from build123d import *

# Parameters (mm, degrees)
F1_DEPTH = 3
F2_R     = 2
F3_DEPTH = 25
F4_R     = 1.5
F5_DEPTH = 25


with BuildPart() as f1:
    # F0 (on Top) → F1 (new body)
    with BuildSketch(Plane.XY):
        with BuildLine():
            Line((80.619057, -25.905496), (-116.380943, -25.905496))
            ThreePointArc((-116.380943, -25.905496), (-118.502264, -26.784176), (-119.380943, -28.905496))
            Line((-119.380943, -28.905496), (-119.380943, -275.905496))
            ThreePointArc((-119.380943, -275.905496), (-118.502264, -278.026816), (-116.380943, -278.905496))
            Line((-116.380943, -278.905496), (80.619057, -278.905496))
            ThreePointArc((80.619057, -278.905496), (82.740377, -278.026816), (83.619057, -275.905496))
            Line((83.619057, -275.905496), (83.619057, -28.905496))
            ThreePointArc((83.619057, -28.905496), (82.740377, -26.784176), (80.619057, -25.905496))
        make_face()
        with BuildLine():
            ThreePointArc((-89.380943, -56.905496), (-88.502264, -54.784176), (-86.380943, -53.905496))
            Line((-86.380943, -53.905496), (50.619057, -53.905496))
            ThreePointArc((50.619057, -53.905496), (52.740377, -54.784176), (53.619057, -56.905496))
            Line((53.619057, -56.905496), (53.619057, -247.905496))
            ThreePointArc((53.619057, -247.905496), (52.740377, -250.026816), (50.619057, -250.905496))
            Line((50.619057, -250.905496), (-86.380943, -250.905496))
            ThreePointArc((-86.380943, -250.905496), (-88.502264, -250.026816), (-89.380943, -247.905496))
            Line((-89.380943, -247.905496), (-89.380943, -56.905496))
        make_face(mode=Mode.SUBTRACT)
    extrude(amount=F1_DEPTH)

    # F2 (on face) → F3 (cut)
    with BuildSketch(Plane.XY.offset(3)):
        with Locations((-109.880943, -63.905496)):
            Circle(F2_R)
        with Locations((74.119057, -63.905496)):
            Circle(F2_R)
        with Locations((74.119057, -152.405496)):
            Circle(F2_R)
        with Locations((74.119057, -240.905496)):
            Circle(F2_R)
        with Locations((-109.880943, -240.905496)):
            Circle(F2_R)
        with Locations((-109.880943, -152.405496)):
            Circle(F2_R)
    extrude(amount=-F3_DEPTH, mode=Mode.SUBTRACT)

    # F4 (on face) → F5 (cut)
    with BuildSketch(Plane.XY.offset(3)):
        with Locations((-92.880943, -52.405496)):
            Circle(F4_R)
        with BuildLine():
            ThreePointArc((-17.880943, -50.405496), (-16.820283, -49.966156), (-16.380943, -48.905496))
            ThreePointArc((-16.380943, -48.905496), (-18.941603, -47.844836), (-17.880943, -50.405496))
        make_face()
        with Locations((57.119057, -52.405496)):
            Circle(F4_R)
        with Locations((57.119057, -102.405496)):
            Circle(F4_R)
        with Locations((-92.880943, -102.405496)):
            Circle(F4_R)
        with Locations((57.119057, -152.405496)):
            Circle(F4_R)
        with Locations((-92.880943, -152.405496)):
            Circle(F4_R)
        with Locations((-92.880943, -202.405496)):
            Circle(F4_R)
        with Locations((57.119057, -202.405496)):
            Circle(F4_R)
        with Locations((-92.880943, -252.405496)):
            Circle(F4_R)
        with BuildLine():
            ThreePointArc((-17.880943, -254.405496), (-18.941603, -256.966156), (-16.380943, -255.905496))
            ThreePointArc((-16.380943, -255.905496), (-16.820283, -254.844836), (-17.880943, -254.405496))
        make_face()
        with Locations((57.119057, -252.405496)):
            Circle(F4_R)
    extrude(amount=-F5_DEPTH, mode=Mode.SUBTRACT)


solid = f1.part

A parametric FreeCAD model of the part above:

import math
import FreeCAD as App
import Part
import Sketcher

doc = App.newDocument("Part")
body = doc.addObject("PartDesign::Body", "Body")

sketch1 = body.newObject("Sketcher::SketchObject", "Sketch")
sketch1.AttachmentSupport = (doc.getObject("XY_Plane"), [""])
sketch1.MapMode = "FlatFace"
sketch1.addGeometry([
    Part.LineSegment(App.Vector(80.6, -25.9, 0), App.Vector(-116.4, -25.9, 0)),
    Part.ArcOfCircle(Part.Circle(App.Vector(-116.4, -28.9, 0), App.Vector(0, 0, 1), 3), math.radians(90), math.radians(180)),
    Part.LineSegment(App.Vector(-119.4, -28.9, 0), App.Vector(-119.4, -275.9, 0)),
    Part.ArcOfCircle(Part.Circle(App.Vector(-116.4, -275.9, 0), App.Vector(0, 0, 1), 3), math.radians(180), math.radians(270)),
    Part.LineSegment(App.Vector(-116.4, -278.9, 0), App.Vector(80.6, -278.9, 0)),
    Part.ArcOfCircle(Part.Circle(App.Vector(80.6, -275.9, 0), App.Vector(0, 0, 1), 3), math.radians(-90), math.radians(0)),
    Part.LineSegment(App.Vector(83.6, -275.9, 0), App.Vector(83.6, -28.9, 0)),
    Part.ArcOfCircle(Part.Circle(App.Vector(80.6, -28.9, 0), App.Vector(0, 0, 1), 3), math.radians(0), math.radians(90)),
    Part.LineSegment(App.Vector(-89.4, -247.9, 0), App.Vector(-89.4, -56.9, 0)),
    Part.ArcOfCircle(Part.Circle(App.Vector(-86.4, -56.9, 0), App.Vector(0, 0, 1), 3), math.radians(90), math.radians(180)),
    Part.LineSegment(App.Vector(-86.4, -53.9, 0), App.Vector(50.6, -53.9, 0)),
    Part.ArcOfCircle(Part.Circle(App.Vector(50.6, -56.9, 0), App.Vector(0, 0, 1), 3), math.radians(0), math.radians(90)),
    Part.LineSegment(App.Vector(53.6, -56.9, 0), App.Vector(53.6, -247.9, 0)),
    Part.ArcOfCircle(Part.Circle(App.Vector(50.6, -247.9, 0), App.Vector(0, 0, 1), 3), math.radians(-90), math.radians(0)),
    Part.LineSegment(App.Vector(50.6, -250.9, 0), App.Vector(-86.4, -250.9, 0)),
    Part.ArcOfCircle(Part.Circle(App.Vector(-86.4, -247.9, 0), App.Vector(0, 0, 1), 3), math.radians(180), math.radians(270)),
], False)
sketch1.addConstraint([
    Sketcher.Constraint("Tangent", 0, 2, 1, 1),
    Sketcher.Constraint("Tangent", 1, 2, 2, 1),
    Sketcher.Constraint("Tangent", 2, 2, 3, 1),
    Sketcher.Constraint("Tangent", 3, 2, 4, 1),
    Sketcher.Constraint("Tangent", 4, 2, 5, 1),
    Sketcher.Constraint("Tangent", 5, 2, 6, 1),
    Sketcher.Constraint("Tangent", 6, 2, 7, 1),
    Sketcher.Constraint("Tangent", 7, 2, 0, 1),
    Sketcher.Constraint("Tangent", 8, 2, 9, 2),
    Sketcher.Constraint("Tangent", 9, 1, 10, 1),
    Sketcher.Constraint("Tangent", 10, 2, 11, 2),
    Sketcher.Constraint("Tangent", 11, 1, 12, 1),
    Sketcher.Constraint("Tangent", 12, 2, 13, 2),
    Sketcher.Constraint("Tangent", 13, 1, 14, 1),
    Sketcher.Constraint("Tangent", 14, 2, 15, 2),
    Sketcher.Constraint("Tangent", 15, 1, 8, 1),
    Sketcher.Constraint("Horizontal", 0),
    Sketcher.Constraint("Vertical", 2),
    Sketcher.Constraint("Horizontal", 4),
    Sketcher.Constraint("Vertical", 6),
    Sketcher.Constraint("Vertical", 8),
    Sketcher.Constraint("Horizontal", 10),
    Sketcher.Constraint("Vertical", 12),
    Sketcher.Constraint("Horizontal", 14),
    Sketcher.Constraint("Equal", 1, 3),
    Sketcher.Constraint("Equal", 3, 5),
    Sketcher.Constraint("Equal", 5, 7),
    Sketcher.Constraint("Equal", 7, 9),
    Sketcher.Constraint("Equal", 9, 11),
    Sketcher.Constraint("Equal", 11, 13),
    Sketcher.Constraint("Equal", 13, 15),
    Sketcher.Constraint("Radius", 1, 2.999999),
    Sketcher.Constraint("DistanceX", 0, 2, 0, 1, 197.0),
    Sketcher.Constraint("DistanceX", 10, 1, 10, 2, 137.0),
    Sketcher.Constraint("DistanceY", 2, 2, 2, 1, 247.0),
    Sketcher.Constraint("DistanceY", 8, 1, 8, 2, 191.0),
    Sketcher.Constraint("DistanceX", 1, 3, 9, 3, 30.0),
    Sketcher.Constraint("DistanceY", 9, 3, 1, 3, 28.0),
    Sketcher.Constraint("DistanceX", 1, 3, -1, 1, 116.380944),
    Sketcher.Constraint("DistanceY", 1, 3, -1, 1, 28.905495),
])
pad1 = body.newObject("PartDesign::Pad", "Pad")
pad1.Profile = sketch1
pad1.Length = 3

sketch2 = body.newObject("Sketcher::SketchObject", "Sketch001")
sketch2.AttachmentSupport = (doc.getObject("XY_Plane"), [""])
sketch2.MapMode = "FlatFace"
sketch2.AttachmentOffset = App.Placement(App.Vector(0, 0, 3), App.Rotation())
sketch2.addGeometry([
    Part.Circle(App.Vector(-109.9, -63.9, 0), App.Vector(0, 0, 1), 2),
    Part.Circle(App.Vector(74.1, -63.9, 0), App.Vector(0, 0, 1), 2),
    Part.Circle(App.Vector(74.1, -152.4, 0), App.Vector(0, 0, 1), 2),
    Part.Circle(App.Vector(74.1, -240.9, 0), App.Vector(0, 0, 1), 2),
    Part.Circle(App.Vector(-109.9, -240.9, 0), App.Vector(0, 0, 1), 2),
    Part.Circle(App.Vector(-109.9, -152.4, 0), App.Vector(0, 0, 1), 2),
], False)
sketch2.addConstraint([
    Sketcher.Constraint("Equal", 0, 1),
    Sketcher.Constraint("Equal", 1, 2),
    Sketcher.Constraint("Equal", 2, 3),
    Sketcher.Constraint("Equal", 3, 4),
    Sketcher.Constraint("Equal", 4, 5),
    Sketcher.Constraint("Horizontal", 0, 3, 1, 3),
    Sketcher.Constraint("Horizontal", 3, 3, 4, 3),
    Sketcher.Constraint("Horizontal", 2, 3, 5, 3),
    Sketcher.Constraint("Vertical", 1, 3, 2, 3),
    Sketcher.Constraint("Vertical", 2, 3, 3, 3),
    Sketcher.Constraint("Vertical", 0, 3, 4, 3),
    Sketcher.Constraint("Vertical", 4, 3, 5, 3),
    Sketcher.Constraint("Diameter", 0, 4.0),
    Sketcher.Constraint("DistanceX", 0, 3, 1, 3, 184.0),
    Sketcher.Constraint("DistanceY", 3, 3, 1, 3, 177.0),
    Sketcher.Constraint("DistanceY", 2, 3, 1, 3, 88.5),
    Sketcher.Constraint("DistanceX", 0, 3, -1, 1, 109.880943),
    Sketcher.Constraint("DistanceY", 0, 3, -1, 1, 63.905496),
])
pocket1 = body.newObject("PartDesign::Pocket", "Pocket")
pocket1.Profile = sketch2
pocket1.Length = 25

sketch3 = body.newObject("Sketcher::SketchObject", "Sketch002")
sketch3.AttachmentSupport = (doc.getObject("XY_Plane"), [""])
sketch3.MapMode = "FlatFace"
sketch3.AttachmentOffset = App.Placement(App.Vector(0, 0, 3), App.Rotation())
sketch3.addGeometry([
    Part.Circle(App.Vector(-92.9, -52.4, 0), App.Vector(0, 0, 1), 1.5),
    Part.ArcOfCircle(Part.Circle(App.Vector(-17.9, -48.9, 0), App.Vector(0, 0, 1), 1.5), math.radians(-90), math.radians(0)),
    Part.ArcOfCircle(Part.Circle(App.Vector(-17.9, -48.9, 0), App.Vector(0, 0, 1), 1.5), math.radians(0), math.radians(270)),
    Part.Circle(App.Vector(57.1, -52.4, 0), App.Vector(0, 0, 1), 1.5),
    Part.Circle(App.Vector(57.1, -102.4, 0), App.Vector(0, 0, 1), 1.5),
    Part.Circle(App.Vector(-92.9, -102.4, 0), App.Vector(0, 0, 1), 1.5),
    Part.Circle(App.Vector(57.1, -152.4, 0), App.Vector(0, 0, 1), 1.5),
    Part.Circle(App.Vector(-92.9, -152.4, 0), App.Vector(0, 0, 1), 1.5),
    Part.Circle(App.Vector(-92.9, -202.4, 0), App.Vector(0, 0, 1), 1.5),
    Part.Circle(App.Vector(57.1, -202.4, 0), App.Vector(0, 0, 1), 1.5),
    Part.Circle(App.Vector(-92.9, -252.4, 0), App.Vector(0, 0, 1), 1.5),
    Part.ArcOfCircle(Part.Circle(App.Vector(-17.9, -255.9, 0), App.Vector(0, 0, 1), 1.5), math.radians(90), math.radians(360)),
    Part.ArcOfCircle(Part.Circle(App.Vector(-17.9, -255.9, 0), App.Vector(0, 0, 1), 1.5), math.radians(0), math.radians(90)),
    Part.Circle(App.Vector(57.1, -252.4, 0), App.Vector(0, 0, 1), 1.5),
], False)
sketch3.addConstraint([
    Sketcher.Constraint("Tangent", 1, 1, 2, 2),
    Sketcher.Constraint("Coincident", 2, 1, 1, 2),
    Sketcher.Constraint("Tangent", 11, 1, 12, 2),
    Sketcher.Constraint("Coincident", 12, 1, 11, 2),
    Sketcher.Constraint("Equal", 0, 1),
    Sketcher.Constraint("Equal", 2, 3),
    Sketcher.Constraint("Equal", 3, 4),
    Sketcher.Constraint("Equal", 4, 5),
    Sketcher.Constraint("Equal", 5, 6),
    Sketcher.Constraint("Equal", 6, 7),
    Sketcher.Constraint("Equal", 7, 8),
    Sketcher.Constraint("Equal", 8, 9),
    Sketcher.Constraint("Equal", 9, 10),
    Sketcher.Constraint("Equal", 10, 11),
    Sketcher.Constraint("Equal", 12, 13),
    Sketcher.Constraint("Horizontal", 0, 3, 3, 3),
    Sketcher.Constraint("Horizontal", 4, 3, 5, 3),
    Sketcher.Constraint("Horizontal", 6, 3, 7, 3),
    Sketcher.Constraint("Horizontal", 8, 3, 9, 3),
    Sketcher.Constraint("Horizontal", 10, 3, 13, 3),
    Sketcher.Constraint("Horizontal", 1, 3, 2, 1),
    Sketcher.Constraint("Horizontal", 11, 3, 12, 1),
    Sketcher.Constraint("Vertical", 3, 3, 4, 3),
    Sketcher.Constraint("Vertical", 0, 3, 5, 3),
    Sketcher.Constraint("Vertical", 4, 3, 6, 3),
    Sketcher.Constraint("Vertical", 5, 3, 7, 3),
    Sketcher.Constraint("Vertical", 7, 3, 8, 3),
    Sketcher.Constraint("Vertical", 6, 3, 9, 3),
    Sketcher.Constraint("Vertical", 8, 3, 10, 3),
    Sketcher.Constraint("Vertical", 2, 3, 11, 3),
    Sketcher.Constraint("Vertical", 9, 3, 13, 3),
    Sketcher.Constraint("Vertical", 12, 3, 1, 1),
    Sketcher.Constraint("Vertical", 1, 1, 11, 1),
    Sketcher.Constraint("Diameter", 0, 3.0),
    Sketcher.Constraint("DistanceX", 0, 3, 1, 3, 74.999999),
    Sketcher.Constraint("DistanceX", 2, 3, 3, 3, 75.0),
    Sketcher.Constraint("DistanceY", 4, 3, 3, 3, 50.0),
    Sketcher.Constraint("DistanceY", 6, 3, 4, 3, 50.0),
    Sketcher.Constraint("DistanceY", 8, 3, 7, 3, 50.0),
    Sketcher.Constraint("DistanceY", 10, 3, 8, 3, 50.0),
    Sketcher.Constraint("DistanceY", 0, 3, 1, 1, 2.0),
    Sketcher.Constraint("DistanceY", 11, 1, 10, 3, 2.0),
    Sketcher.Constraint("DistanceX", 0, 3, -1, 1, 92.880943),
    Sketcher.Constraint("DistanceY", 0, 3, -1, 1, 52.405496),
])
pocket2 = body.newObject("PartDesign::Pocket", "Pocket001")
pocket2.Profile = sketch3
pocket2.Length = 25

doc.recompute()
